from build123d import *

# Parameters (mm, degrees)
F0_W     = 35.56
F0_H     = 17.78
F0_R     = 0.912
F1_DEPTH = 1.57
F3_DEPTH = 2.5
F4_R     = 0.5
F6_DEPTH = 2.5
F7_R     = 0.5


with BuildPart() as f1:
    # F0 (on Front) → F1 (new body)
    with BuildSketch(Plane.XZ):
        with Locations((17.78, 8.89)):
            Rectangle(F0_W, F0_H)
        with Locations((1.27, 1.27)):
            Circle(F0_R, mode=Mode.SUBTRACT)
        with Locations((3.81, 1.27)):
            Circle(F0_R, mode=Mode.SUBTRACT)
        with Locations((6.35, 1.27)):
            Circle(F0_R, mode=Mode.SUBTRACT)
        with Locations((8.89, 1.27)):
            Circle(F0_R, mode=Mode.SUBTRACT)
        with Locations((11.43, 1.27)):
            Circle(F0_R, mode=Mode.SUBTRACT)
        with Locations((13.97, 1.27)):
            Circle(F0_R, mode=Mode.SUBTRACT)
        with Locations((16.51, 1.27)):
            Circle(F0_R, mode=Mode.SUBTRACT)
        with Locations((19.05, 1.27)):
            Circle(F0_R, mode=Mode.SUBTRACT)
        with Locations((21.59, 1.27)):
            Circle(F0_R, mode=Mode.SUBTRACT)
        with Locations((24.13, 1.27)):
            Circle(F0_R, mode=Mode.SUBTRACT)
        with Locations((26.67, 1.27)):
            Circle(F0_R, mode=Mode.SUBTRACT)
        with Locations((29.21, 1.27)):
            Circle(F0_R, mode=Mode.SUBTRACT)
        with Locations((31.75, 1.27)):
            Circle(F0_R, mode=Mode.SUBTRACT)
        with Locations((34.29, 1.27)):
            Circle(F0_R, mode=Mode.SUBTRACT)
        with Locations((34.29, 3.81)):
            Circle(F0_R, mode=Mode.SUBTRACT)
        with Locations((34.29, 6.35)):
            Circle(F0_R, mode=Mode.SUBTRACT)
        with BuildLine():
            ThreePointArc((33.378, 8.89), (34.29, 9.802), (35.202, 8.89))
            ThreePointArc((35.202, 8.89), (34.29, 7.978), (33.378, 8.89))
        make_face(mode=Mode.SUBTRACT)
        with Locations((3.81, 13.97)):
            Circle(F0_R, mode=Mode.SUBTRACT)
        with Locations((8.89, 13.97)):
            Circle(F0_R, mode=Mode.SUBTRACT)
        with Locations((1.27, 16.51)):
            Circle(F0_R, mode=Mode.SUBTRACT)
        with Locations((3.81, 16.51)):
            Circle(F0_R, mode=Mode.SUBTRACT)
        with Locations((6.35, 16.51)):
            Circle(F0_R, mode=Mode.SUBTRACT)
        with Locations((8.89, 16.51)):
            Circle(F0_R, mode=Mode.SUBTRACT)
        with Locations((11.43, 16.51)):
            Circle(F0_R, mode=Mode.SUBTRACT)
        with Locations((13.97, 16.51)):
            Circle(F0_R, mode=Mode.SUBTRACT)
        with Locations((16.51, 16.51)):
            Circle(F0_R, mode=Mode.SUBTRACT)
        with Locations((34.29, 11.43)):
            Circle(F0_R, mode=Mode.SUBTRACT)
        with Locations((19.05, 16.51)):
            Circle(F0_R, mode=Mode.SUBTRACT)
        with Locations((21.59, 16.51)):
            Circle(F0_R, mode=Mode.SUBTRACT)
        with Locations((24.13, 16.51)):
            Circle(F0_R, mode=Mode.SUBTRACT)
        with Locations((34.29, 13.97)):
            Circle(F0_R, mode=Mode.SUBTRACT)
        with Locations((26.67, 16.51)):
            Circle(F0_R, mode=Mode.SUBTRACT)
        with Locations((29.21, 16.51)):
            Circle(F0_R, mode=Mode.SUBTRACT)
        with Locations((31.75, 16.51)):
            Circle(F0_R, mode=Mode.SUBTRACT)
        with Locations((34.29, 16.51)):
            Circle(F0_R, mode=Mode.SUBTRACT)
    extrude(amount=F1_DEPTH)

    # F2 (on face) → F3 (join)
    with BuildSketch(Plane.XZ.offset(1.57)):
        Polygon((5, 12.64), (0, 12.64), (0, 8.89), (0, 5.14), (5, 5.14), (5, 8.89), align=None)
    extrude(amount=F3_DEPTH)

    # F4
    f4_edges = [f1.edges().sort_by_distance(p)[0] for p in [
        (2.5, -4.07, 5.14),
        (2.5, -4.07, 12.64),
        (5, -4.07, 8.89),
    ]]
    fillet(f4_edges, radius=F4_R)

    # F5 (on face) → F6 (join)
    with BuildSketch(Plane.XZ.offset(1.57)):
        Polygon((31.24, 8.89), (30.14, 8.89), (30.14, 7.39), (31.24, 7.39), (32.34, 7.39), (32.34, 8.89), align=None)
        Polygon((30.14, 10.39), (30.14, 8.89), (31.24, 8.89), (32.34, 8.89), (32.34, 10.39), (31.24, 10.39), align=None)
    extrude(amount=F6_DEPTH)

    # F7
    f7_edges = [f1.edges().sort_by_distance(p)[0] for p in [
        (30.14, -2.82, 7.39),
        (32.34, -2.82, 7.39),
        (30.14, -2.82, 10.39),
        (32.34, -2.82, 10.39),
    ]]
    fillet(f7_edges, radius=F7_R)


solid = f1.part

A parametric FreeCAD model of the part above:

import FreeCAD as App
import Part
import Sketcher

V = App.Vector


def edges_at(feature, points):
    """Names of the edges that pass closest to the given points."""
    edges = feature.Shape.Edges
    near = lambda p: min(range(len(edges)), key=lambda i: edges[i].distToShape(Part.Vertex(*p))[0])
    return sorted({f"Edge{near(p) + 1}" for p in points})


def add_polygon(sketch, points):
    """Adds a closed chain of lines whose ends are joined by coincident constraints."""
    first, n = sketch.GeometryCount, len(points)
    for a, b in zip(points, points[1:] + points[:1]):
        sketch.addGeometry(Part.LineSegment(App.Vector(*a, 0), App.Vector(*b, 0)), False)
    for i in range(n):
        sketch.addConstraint(Sketcher.Constraint("Coincident", first + i, 2, first + (i + 1) % n, 1))

doc = App.newDocument("Part")
body = doc.addObject("PartDesign::Body", "Body")

# Sketch on XZ plane
sketch1 = doc.addObject("Sketcher::SketchObject", "Sketch")
body.addObject(sketch1)
sketch1.AttachmentSupport = (doc.XZ_Plane, [""])
sketch1.MapMode = "FlatFace"
add_polygon(sketch1, [(0, 17.78), (0, 0), (35.56, 0), (35.56, 17.78)])  # lines 0-3
sketch1.addGeometry(Part.Circle(V(1.27, 1.27, 0), V(0, 0, 1), 0.912), False)  # 4
sketch1.addGeometry(Part.Circle(V(3.81, 1.27, 0), V(0, 0, 1), 0.912), False)  # 5
sketch1.addGeometry(Part.Circle(V(6.35, 1.27, 0), V(0, 0, 1), 0.912), False)  # 6
sketch1.addGeometry(Part.Circle(V(8.89, 1.27, 0), V(0, 0, 1), 0.912), False)  # 7
sketch1.addGeometry(Part.Circle(V(11.43, 1.27, 0), V(0, 0, 1), 0.912), False)  # 8
sketch1.addGeometry(Part.Circle(V(13.97, 1.27, 0), V(0, 0, 1), 0.912), False)  # 9
sketch1.addGeometry(Part.Circle(V(16.51, 1.27, 0), V(0, 0, 1), 0.912), False)  # 10
sketch1.addGeometry(Part.Circle(V(19.05, 1.27, 0), V(0, 0, 1), 0.912), False)  # 11
sketch1.addGeometry(Part.Circle(V(21.59, 1.27, 0), V(0, 0, 1), 0.912), False)  # 12
sketch1.addGeometry(Part.Circle(V(24.13, 1.27, 0), V(0, 0, 1), 0.912), False)  # 13
sketch1.addGeometry(Part.Circle(V(26.67, 1.27, 0), V(0, 0, 1), 0.912), False)  # 14
sketch1.addGeometry(Part.Circle(V(29.21, 1.27, 0), V(0, 0, 1), 0.912), False)  # 15
sketch1.addGeometry(Part.Circle(V(31.75, 1.27, 0), V(0, 0, 1), 0.912), False)  # 16
sketch1.addGeometry(Part.Circle(V(34.29, 1.27, 0), V(0, 0, 1), 0.912), False)  # 17
sketch1.addGeometry(Part.Circle(V(34.29, 3.81, 0), V(0, 0, 1), 0.912), False)  # 18
sketch1.addGeometry(Part.Circle(V(34.29, 6.35, 0), V(0, 0, 1), 0.912), False)  # 19
sketch1.addGeometry(Part.Circle(V(34.29, 8.89, 0), V(0, 0, 1), 0.912), False)  # 20
sketch1.addGeometry(Part.Circle(V(3.81, 13.97, 0), V(0, 0, 1), 0.912), False)  # 21
sketch1.addGeometry(Part.Circle(V(8.89, 13.97, 0), V(0, 0, 1), 0.912), False)  # 22
sketch1.addGeometry(Part.Circle(V(1.27, 16.51, 0), V(0, 0, 1), 0.912), False)  # 23
sketch1.addGeometry(Part.Circle(V(3.81, 16.51, 0), V(0, 0, 1), 0.912), False)  # 24
sketch1.addGeometry(Part.Circle(V(6.35, 16.51, 0), V(0, 0, 1), 0.912), False)  # 25
sketch1.addGeometry(Part.Circle(V(8.89, 16.51, 0), V(0, 0, 1), 0.912), False)  # 26
sketch1.addGeometry(Part.Circle(V(11.43, 16.51, 0), V(0, 0, 1), 0.912), False)  # 27
sketch1.addGeometry(Part.Circle(V(13.97, 16.51, 0), V(0, 0, 1), 0.912), False)  # 28
sketch1.addGeometry(Part.Circle(V(16.51, 16.51, 0), V(0, 0, 1), 0.912), False)  # 29
sketch1.addGeometry(Part.Circle(V(34.29, 11.43, 0), V(0, 0, 1), 0.912), False)  # 30
sketch1.addGeometry(Part.Circle(V(19.05, 16.51, 0), V(0, 0, 1), 0.912), False)  # 31
sketch1.addGeometry(Part.Circle(V(21.59, 16.51, 0), V(0, 0, 1), 0.912), False)  # 32
sketch1.addGeometry(Part.Circle(V(24.13, 16.51, 0), V(0, 0, 1), 0.912), False)  # 33
sketch1.addGeometry(Part.Circle(V(34.29, 13.97, 0), V(0, 0, 1), 0.912), False)  # 34
sketch1.addGeometry(Part.Circle(V(26.67, 16.51, 0), V(0, 0, 1), 0.912), False)  # 35
sketch1.addGeometry(Part.Circle(V(29.21, 16.51, 0), V(0, 0, 1), 0.912), False)  # 36
sketch1.addGeometry(Part.Circle(V(31.75, 16.51, 0), V(0, 0, 1), 0.912), False)  # 37
sketch1.addGeometry(Part.Circle(V(34.29, 16.51, 0), V(0, 0, 1), 0.912), False)  # 38
sketch1.addConstraint([
    Sketcher.Constraint("Vertical", 0),
    Sketcher.Constraint("Horizontal", 1),
    Sketcher.Constraint("Vertical", 2),
    Sketcher.Constraint("Horizontal", 3),
    Sketcher.Constraint("Coincident", 0, 2, -1, 1),
    Sketcher.Constraint("Equal", 4, 5),
    Sketcher.Constraint("Equal", 5, 6),
    Sketcher.Constraint("Equal", 6, 7),
    Sketcher.Constraint("Equal", 7, 8),
    Sketcher.Constraint("Equal", 8, 9),
    Sketcher.Constraint("Equal", 9, 10),
    Sketcher.Constraint("Equal", 10, 11),
    Sketcher.Constraint("Equal", 11, 12),
    Sketcher.Constraint("Equal", 12, 13),
    Sketcher.Constraint("Equal", 13, 14),
    Sketcher.Constraint("Equal", 14, 15),
    Sketcher.Constraint("Equal", 15, 16),
    Sketcher.Constraint("Equal", 16, 17),
    Sketcher.Constraint("Equal", 17, 18),
    Sketcher.Constraint("Equal", 18, 19),
    Sketcher.Constraint("Equal", 19, 20),
    Sketcher.Constraint("Equal", 20, 21),
    Sketcher.Constraint("Equal", 21, 22),
    Sketcher.Constraint("Equal", 22, 23),
    Sketcher.Constraint("Equal", 23, 24),
    Sketcher.Constraint("Equal", 24, 25),
    Sketcher.Constraint("Equal", 25, 26),
    Sketcher.Constraint("Equal", 26, 27),
    Sketcher.Constraint("Equal", 27, 28),
    Sketcher.Constraint("Equal", 28, 29),
    Sketcher.Constraint("Equal", 29, 30),
    Sketcher.Constraint("Equal", 30, 31),
    Sketcher.Constraint("Equal", 31, 32),
    Sketcher.Constraint("Equal", 32, 33),
    Sketcher.Constraint("Equal", 33, 34),
    Sketcher.Constraint("Equal", 34, 35),
    Sketcher.Constraint("Equal", 35, 36),
    Sketcher.Constraint("Equal", 36, 37),
    Sketcher.Constraint("Equal", 37, 38),
    Sketcher.Constraint("Horizontal", 4, 3, 5, 3),
    Sketcher.Constraint("Horizontal", 5, 3, 6, 3),
    Sketcher.Constraint("Horizontal", 6, 3, 7, 3),
    Sketcher.Constraint("Horizontal", 7, 3, 8, 3),
    Sketcher.Constraint("Horizontal", 8, 3, 9, 3),
    Sketcher.Constraint("Horizontal", 9, 3, 10, 3),
    Sketcher.Constraint("Horizontal", 10, 3, 11, 3),
    Sketcher.Constraint("Horizontal", 11, 3, 12, 3),
    Sketcher.Constraint("Horizontal", 12, 3, 13, 3),
    Sketcher.Constraint("Horizontal", 13, 3, 14, 3),
    Sketcher.Constraint("Horizontal", 14, 3, 15, 3),
    Sketcher.Constraint("Horizontal", 15, 3, 16, 3),
    Sketcher.Constraint("Horizontal", 16, 3, 17, 3),
    Sketcher.Constraint("Horizontal", 21, 3, 22, 3),
    Sketcher.Constraint("Horizontal", 23, 3, 24, 3),
    Sketcher.Constraint("Horizontal", 24, 3, 25, 3),
    Sketcher.Constraint("Horizontal", 25, 3, 26, 3),
    Sketcher.Constraint("Horizontal", 26, 3, 27, 3),
    Sketcher.Constraint("Horizontal", 27, 3, 28, 3),
    Sketcher.Constraint("Horizontal", 28, 3, 29, 3),
    Sketcher.Constraint("Horizontal", 29, 3, 31, 3),
    Sketcher.Constraint("Horizontal", 31, 3, 32, 3),
    Sketcher.Constraint("Horizontal", 32, 3, 33, 3),
    Sketcher.Constraint("Horizontal", 22, 3, 34, 3),
    Sketcher.Constraint("Horizontal", 33, 3, 35, 3),
    Sketcher.Constraint("Horizontal", 35, 3, 36, 3),
    Sketcher.Constraint("Horizontal", 36, 3, 37, 3),
    Sketcher.Constraint("Horizontal", 37, 3, 38, 3),
    Sketcher.Constraint("Vertical", 17, 3, 18, 3),
    Sketcher.Constraint("Vertical", 18, 3, 19, 3),
    Sketcher.Constraint("Vertical", 19, 3, 20, 3),
    Sketcher.Constraint("Vertical", 5, 3, 21, 3),
    Sketcher.Constraint("Vertical", 7, 3, 22, 3),
    Sketcher.Constraint("Vertical", 4, 3, 23, 3),
    Sketcher.Constraint("Vertical", 21, 3, 24, 3),
    Sketcher.Constraint("Vertical", 6, 3, 25, 3),
    Sketcher.Constraint("Vertical", 22, 3, 26, 3),
    Sketcher.Constraint("Vertical", 8, 3, 27, 3),
    Sketcher.Constraint("Vertical", 9, 3, 28, 3),
    Sketcher.Constraint("Vertical", 10, 3, 29, 3),
    Sketcher.Constraint("Vertical", 20, 3, 30, 3),
    Sketcher.Constraint("Vertical", 11, 3, 31, 3),
    Sketcher.Constraint("Vertical", 12, 3, 32, 3),
    Sketcher.Constraint("Vertical", 13, 3, 33, 3),
    Sketcher.Constraint("Vertical", 30, 3, 34, 3),
    Sketcher.Constraint("Vertical", 14, 3, 35, 3),
    Sketcher.Constraint("Vertical", 15, 3, 36, 3),
    Sketcher.Constraint("Vertical", 16, 3, 37, 3),
    Sketcher.Constraint("Vertical", 34, 3, 38, 3),
    Sketcher.Constraint("Diameter", 4, 1.824),
    Sketcher.Constraint("DistanceX", 1, 1, 1, 2, 35.56),
    Sketcher.Constraint("DistanceY", 0, 2, 0, 1, 17.78),
    Sketcher.Constraint("DistanceX", 4, 3, 9, 3, 12.7),
    Sketcher.Constraint("DistanceX", 5, 3, 10, 3, 12.7),
    Sketcher.Constraint("DistanceX", 6, 3, 11, 3, 12.7),
    Sketcher.Constraint("DistanceX", 7, 3, 12, 3, 12.7),
    Sketcher.Constraint("DistanceX", 8, 3, 13, 3, 12.7),
    Sketcher.Constraint("DistanceX", 9, 3, 14, 3, 12.7),
    Sketcher.Constraint("DistanceX", 10, 3, 15, 3, 12.7),
    Sketcher.Constraint("DistanceX", 11, 3, 16, 3, 12.7),
    Sketcher.Constraint("DistanceX", 12, 3, 17, 3, 12.7),
    Sketcher.Constraint("DistanceY", 5, 3, 21, 3, 12.7),
    Sketcher.Constraint("DistanceX", -1, 1, 4, 3, 1.27),
    Sketcher.Constraint("DistanceY", -1, 1, 4, 3, 1.27),
    Sketcher.Constraint("DistanceX", -1, 1, 5, 3, 3.81),
    Sketcher.Constraint("DistanceX", -1, 1, 6, 3, 6.35),
    Sketcher.Constraint("DistanceX", -1, 1, 7, 3, 8.89),
    Sketcher.Constraint("DistanceX", -1, 1, 8, 3, 11.43),
    Sketcher.Constraint("DistanceY", -1, 1, 18, 3, 3.81),
    Sketcher.Constraint("DistanceY", -1, 1, 19, 3, 6.35),
    Sketcher.Constraint("DistanceY", -1, 1, 20, 3, 8.89),
    Sketcher.Constraint("DistanceY", -1, 1, 23, 3, 16.51),
    Sketcher.Constraint("DistanceY", -1, 1, 30, 3, 11.43),
])
pad1 = doc.addObject("PartDesign::Pad", "Pad")
body.addObject(pad1)
pad1.Profile = sketch1
pad1.Length = 1.57

# Sketch on XZ plane
sketch2 = doc.addObject("Sketcher::SketchObject", "Sketch001")
body.addObject(sketch2)
sketch2.AttachmentSupport = (doc.XZ_Plane, [""])
sketch2.MapMode = "FlatFace"
sketch2.AttachmentOffset = App.Placement(V(0, 0, 1.57), App.Rotation())
add_polygon(sketch2, [(5, 12.64), (0, 12.64), (0, 5.14), (5, 5.14)])  # lines 0-3
sketch2.addConstraint([
    Sketcher.Constraint("Horizontal", 0),
    Sketcher.Constraint("Vertical", 1),
    Sketcher.Constraint("Horizontal", 2),
    Sketcher.Constraint("Vertical", 3),
    Sketcher.Constraint("PointOnObject", 0, 2, -2),
    Sketcher.Constraint("DistanceX", 0, 2, 0, 1, 5.0),
    Sketcher.Constraint("DistanceY", 1, 2, 1, 1, 7.5),
    Sketcher.Constraint("DistanceY", -1, 1, 0, 2, 12.64),
])
pad2 = doc.addObject("PartDesign::Pad", "Pad001")
body.addObject(pad2)
pad2.Profile = sketch2
pad2.Length = 2.5
doc.recompute()

fillet = doc.addObject("PartDesign::Fillet", "Fillet")
body.addObject(fillet)
fillet.Base = (pad2, edges_at(pad2, [(2.5, -4.07, 5.14), (2.5, -4.07, 12.64), (5, -4.07, 8.89)]))
fillet.Radius = 0.5

# Sketch on XZ plane
sketch3 = doc.addObject("Sketcher::SketchObject", "Sketch002")
body.addObject(sketch3)
sketch3.AttachmentSupport = (doc.XZ_Plane, [""])
sketch3.MapMode = "FlatFace"
sketch3.AttachmentOffset = App.Placement(V(0, 0, 1.57), App.Rotation())
add_polygon(sketch3, [(30.14, 7.39), (32.34, 7.39), (32.34, 10.39), (30.14, 10.39)])  # lines 0-3
sketch3.addConstraint([
    Sketcher.Constraint("Horizontal", 0),
    Sketcher.Constraint("Vertical", 1),
    Sketcher.Constraint("Horizontal", 2),
    Sketcher.Constraint("Vertical", 3),
    Sketcher.Constraint("DistanceY", 1, 1, 1, 2, 3.0),
    Sketcher.Constraint("DistanceX", 0, 1, 0, 2, 2.2),
    Sketcher.Constraint("DistanceX", -1, 1, 0, 2, 32.34),
    Sketcher.Constraint("DistanceY", -1, 1, 0, 2, 7.39),
])
pad3 = doc.addObject("PartDesign::Pad", "Pad002")
body.addObject(pad3)
pad3.Profile = sketch3
pad3.Length = 2.5
doc.recompute()

fillet2 = doc.addObject("PartDesign::Fillet", "Fillet001")
body.addObject(fillet2)
fillet2.Base = (pad3, edges_at(pad3, [
    (30.14, -2.82, 7.39),
    (32.34, -2.82, 7.39),
    (30.14, -2.82, 10.39),
    (32.34, -2.82, 10.39),
]))
fillet2.Radius = 0.5

doc.recompute()
